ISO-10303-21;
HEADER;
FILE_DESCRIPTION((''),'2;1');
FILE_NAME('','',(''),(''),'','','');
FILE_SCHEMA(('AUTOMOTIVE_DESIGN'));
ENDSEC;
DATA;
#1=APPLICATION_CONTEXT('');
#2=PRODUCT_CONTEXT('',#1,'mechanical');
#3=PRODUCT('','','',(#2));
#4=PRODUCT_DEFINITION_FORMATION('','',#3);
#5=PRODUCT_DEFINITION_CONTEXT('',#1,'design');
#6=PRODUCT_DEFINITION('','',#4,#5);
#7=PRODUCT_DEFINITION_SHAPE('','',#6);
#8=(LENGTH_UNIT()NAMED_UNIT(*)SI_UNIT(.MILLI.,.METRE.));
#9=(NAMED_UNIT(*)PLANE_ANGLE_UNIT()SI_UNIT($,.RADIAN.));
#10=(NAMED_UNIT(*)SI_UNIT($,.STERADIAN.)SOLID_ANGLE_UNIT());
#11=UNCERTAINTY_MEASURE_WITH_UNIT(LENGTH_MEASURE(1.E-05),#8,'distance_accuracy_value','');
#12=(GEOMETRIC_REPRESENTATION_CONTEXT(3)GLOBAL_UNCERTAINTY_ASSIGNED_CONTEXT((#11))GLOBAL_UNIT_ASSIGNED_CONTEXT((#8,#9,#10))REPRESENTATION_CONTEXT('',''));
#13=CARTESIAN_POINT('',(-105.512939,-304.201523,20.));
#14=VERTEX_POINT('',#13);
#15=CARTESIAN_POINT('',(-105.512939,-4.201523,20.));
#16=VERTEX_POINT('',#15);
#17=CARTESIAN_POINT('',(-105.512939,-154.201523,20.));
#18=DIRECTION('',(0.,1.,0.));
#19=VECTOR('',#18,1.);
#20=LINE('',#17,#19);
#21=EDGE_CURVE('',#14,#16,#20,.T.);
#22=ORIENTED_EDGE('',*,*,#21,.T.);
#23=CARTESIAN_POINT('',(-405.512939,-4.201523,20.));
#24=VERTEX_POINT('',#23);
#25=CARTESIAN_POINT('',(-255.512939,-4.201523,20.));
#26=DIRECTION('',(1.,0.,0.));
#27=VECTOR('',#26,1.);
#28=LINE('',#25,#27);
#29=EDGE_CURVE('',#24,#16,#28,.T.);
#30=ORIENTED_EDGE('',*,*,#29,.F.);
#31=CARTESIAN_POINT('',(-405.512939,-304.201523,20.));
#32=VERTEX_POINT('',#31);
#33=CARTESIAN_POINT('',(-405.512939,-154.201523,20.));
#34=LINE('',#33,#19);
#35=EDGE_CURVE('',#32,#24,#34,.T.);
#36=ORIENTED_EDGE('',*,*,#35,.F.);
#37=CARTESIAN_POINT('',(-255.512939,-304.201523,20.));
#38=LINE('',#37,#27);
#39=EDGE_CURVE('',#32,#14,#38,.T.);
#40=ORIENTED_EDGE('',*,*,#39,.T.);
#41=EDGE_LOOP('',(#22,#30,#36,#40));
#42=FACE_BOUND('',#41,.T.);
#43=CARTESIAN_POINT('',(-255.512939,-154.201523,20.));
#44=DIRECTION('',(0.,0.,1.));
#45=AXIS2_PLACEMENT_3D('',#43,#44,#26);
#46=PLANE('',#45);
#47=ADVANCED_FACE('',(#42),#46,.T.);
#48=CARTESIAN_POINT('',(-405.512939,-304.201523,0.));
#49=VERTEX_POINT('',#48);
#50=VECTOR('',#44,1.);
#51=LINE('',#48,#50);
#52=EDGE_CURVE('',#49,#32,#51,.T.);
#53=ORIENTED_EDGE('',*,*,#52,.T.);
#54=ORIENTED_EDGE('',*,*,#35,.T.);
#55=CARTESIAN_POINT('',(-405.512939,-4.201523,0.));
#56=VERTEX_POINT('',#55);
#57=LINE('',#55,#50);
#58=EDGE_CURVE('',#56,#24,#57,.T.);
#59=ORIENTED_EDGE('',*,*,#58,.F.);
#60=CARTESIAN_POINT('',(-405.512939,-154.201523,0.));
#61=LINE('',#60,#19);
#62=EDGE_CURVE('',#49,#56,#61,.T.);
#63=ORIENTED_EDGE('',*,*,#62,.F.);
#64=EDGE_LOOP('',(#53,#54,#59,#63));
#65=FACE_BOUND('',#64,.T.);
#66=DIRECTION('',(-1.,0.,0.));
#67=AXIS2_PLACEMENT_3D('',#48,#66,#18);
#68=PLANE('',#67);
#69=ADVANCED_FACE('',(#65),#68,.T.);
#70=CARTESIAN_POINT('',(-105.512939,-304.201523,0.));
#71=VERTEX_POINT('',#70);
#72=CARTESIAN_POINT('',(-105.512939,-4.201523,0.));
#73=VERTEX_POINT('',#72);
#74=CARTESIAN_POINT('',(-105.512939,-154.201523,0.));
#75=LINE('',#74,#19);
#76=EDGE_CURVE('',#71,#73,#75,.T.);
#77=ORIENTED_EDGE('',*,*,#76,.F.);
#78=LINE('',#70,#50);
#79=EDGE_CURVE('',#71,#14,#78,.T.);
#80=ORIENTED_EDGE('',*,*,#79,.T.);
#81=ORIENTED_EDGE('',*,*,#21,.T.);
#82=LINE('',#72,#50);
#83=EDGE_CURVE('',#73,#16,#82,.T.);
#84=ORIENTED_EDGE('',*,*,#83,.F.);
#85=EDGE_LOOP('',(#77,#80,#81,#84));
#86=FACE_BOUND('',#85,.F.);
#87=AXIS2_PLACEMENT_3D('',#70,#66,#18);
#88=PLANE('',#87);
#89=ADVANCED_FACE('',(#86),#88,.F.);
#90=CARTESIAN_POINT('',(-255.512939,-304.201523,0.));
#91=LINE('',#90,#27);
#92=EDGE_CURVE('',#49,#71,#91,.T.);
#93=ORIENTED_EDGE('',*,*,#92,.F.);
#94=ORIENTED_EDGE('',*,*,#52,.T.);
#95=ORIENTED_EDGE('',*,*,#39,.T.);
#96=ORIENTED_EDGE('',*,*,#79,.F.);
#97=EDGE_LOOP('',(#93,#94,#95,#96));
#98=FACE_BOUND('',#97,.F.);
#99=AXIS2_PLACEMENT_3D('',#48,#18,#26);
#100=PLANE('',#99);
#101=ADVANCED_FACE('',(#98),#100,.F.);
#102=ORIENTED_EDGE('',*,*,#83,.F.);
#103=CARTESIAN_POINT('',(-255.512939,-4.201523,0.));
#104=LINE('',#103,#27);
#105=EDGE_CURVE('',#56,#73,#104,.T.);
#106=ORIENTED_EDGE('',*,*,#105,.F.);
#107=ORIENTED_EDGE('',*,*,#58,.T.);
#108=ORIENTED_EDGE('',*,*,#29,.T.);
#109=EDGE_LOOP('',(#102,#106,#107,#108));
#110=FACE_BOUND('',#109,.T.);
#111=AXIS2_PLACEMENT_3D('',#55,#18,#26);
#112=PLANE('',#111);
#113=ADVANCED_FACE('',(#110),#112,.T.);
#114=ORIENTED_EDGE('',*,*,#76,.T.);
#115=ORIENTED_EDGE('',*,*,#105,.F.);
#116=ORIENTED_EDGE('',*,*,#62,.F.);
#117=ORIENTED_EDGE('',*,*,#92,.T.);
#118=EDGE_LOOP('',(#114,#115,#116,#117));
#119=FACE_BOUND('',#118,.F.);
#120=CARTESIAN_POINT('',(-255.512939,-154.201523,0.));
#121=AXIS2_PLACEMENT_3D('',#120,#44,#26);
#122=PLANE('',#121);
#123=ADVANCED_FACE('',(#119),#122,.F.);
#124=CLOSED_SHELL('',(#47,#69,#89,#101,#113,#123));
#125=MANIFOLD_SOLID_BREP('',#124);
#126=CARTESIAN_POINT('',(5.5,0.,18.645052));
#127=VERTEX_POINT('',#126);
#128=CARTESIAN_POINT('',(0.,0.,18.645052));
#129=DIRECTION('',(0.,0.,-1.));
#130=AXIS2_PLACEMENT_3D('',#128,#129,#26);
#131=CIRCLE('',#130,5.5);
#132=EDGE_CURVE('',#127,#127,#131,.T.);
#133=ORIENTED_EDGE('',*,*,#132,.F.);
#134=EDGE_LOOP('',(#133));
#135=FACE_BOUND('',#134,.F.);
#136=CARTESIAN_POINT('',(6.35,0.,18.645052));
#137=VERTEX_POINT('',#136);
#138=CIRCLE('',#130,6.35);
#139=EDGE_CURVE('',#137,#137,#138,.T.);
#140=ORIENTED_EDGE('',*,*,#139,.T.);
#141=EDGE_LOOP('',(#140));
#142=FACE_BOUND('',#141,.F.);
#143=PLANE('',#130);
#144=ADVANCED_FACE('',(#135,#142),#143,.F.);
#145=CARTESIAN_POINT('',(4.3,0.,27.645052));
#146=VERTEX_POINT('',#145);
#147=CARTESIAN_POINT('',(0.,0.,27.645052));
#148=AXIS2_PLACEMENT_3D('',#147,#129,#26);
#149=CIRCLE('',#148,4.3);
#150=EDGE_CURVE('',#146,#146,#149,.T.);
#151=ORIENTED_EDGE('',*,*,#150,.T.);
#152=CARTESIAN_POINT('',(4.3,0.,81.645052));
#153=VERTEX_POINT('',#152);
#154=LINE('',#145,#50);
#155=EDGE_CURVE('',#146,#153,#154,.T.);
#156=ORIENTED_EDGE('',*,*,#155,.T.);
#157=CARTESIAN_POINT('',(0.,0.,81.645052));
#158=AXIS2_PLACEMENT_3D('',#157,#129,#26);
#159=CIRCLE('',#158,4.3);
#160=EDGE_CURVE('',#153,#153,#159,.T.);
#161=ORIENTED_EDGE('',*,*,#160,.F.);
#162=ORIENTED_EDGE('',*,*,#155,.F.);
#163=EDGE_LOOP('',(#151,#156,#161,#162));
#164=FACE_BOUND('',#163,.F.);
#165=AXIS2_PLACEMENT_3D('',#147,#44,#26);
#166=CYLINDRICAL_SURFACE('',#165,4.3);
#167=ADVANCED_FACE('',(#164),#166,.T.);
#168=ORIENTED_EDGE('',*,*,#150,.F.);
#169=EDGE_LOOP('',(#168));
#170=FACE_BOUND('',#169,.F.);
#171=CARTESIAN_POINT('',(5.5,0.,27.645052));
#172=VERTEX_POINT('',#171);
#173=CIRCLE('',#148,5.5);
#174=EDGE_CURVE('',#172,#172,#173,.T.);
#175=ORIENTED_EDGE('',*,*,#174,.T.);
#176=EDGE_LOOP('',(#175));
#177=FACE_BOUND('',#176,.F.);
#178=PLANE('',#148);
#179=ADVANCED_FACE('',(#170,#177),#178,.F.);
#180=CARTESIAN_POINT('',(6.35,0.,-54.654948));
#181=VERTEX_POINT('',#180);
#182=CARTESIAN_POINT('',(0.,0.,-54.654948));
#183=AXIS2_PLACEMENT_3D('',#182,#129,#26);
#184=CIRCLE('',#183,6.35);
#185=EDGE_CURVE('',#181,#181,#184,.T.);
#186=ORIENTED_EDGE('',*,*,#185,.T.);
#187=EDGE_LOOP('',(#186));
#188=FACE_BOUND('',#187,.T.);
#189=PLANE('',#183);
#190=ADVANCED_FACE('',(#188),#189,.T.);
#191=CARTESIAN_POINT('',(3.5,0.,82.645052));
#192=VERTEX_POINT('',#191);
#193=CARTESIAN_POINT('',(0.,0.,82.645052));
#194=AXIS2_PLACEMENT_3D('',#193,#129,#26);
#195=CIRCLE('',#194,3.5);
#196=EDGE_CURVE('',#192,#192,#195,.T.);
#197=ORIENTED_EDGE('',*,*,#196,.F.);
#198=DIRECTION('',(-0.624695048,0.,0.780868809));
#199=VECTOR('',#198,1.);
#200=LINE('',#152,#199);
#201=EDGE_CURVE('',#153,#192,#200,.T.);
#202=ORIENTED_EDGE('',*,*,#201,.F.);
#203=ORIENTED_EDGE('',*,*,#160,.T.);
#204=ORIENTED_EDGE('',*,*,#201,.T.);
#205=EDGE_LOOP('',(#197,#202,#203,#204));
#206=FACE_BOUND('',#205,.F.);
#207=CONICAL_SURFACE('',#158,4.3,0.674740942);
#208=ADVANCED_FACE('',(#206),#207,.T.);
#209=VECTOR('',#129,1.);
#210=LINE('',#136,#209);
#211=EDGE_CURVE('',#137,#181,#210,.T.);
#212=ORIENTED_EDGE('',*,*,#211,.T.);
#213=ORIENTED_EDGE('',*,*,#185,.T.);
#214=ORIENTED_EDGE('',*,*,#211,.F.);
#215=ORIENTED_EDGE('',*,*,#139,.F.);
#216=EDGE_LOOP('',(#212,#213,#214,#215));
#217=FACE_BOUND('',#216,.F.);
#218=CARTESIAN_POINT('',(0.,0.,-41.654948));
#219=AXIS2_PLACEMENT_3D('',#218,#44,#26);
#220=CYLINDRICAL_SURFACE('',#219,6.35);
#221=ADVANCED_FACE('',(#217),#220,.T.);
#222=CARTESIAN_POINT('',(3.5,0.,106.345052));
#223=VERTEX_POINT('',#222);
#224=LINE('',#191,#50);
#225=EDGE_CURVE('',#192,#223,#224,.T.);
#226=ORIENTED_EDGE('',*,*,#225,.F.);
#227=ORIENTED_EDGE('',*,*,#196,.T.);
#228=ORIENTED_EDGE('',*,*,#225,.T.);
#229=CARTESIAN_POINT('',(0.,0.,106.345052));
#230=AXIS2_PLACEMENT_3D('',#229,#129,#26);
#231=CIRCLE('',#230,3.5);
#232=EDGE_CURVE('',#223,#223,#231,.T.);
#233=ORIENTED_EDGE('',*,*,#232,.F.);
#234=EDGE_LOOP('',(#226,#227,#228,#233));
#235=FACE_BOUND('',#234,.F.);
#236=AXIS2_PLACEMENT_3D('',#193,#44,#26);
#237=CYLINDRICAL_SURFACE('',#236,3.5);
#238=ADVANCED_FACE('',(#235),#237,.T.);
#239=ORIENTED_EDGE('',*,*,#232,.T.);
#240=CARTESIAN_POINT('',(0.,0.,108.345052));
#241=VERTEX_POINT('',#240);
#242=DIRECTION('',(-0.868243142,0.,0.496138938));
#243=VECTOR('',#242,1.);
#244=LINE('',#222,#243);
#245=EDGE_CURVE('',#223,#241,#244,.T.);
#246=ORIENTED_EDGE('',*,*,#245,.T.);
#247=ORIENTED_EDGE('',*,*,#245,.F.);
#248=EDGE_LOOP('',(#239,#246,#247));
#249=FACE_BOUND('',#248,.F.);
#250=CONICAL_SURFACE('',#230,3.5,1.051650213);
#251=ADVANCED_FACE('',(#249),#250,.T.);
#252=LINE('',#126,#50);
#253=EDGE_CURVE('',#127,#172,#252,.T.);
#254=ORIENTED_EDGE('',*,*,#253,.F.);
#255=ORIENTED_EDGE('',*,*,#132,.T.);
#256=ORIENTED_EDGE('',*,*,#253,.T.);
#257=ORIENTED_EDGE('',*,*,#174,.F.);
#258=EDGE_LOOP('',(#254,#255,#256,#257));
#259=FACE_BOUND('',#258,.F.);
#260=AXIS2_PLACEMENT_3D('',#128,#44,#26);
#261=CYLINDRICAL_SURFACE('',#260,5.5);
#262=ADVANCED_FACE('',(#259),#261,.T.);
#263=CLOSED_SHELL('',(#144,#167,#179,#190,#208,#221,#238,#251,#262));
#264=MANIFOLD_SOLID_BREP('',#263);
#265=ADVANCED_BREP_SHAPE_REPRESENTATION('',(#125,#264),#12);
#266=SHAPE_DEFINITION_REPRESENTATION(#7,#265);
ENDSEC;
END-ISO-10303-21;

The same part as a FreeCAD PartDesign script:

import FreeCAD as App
import Part
import Sketcher
from FreeCAD import Vector


def add_polygon(sketch, points):
    """Adds a closed chain of lines whose ends are joined by coincident constraints."""
    first, n = sketch.GeometryCount, len(points)
    for a, b in zip(points, points[1:] + points[:1]):
        sketch.addGeometry(Part.LineSegment(App.Vector(*a, 0), App.Vector(*b, 0)), False)
    for i in range(n):
        sketch.addConstraint(Sketcher.Constraint("Coincident", first + i, 2, first + (i + 1) % n, 1))

doc = App.newDocument("Part")
body = doc.addObject("PartDesign::Body", "Body")

sketch1 = body.newObject("Sketcher::SketchObject", "Sketch")
sketch1.AttachmentSupport = (doc.getObject("XZ_Plane"), [""])
sketch1.MapMode = "FlatFace"
add_polygon(sketch1, [(3.5, 106.345052), (0, 108.345052), (0, -41.654948), (6.35, -41.654948), (6.35, 18.645052), (5.5, 18.645052), (5.5, 27.645052), (4.3, 27.645052), (4.3, 81.645052), (3.5, 82.645052)])
sketch1.addConstraint([
    Sketcher.Constraint("Vertical", 1),
    Sketcher.Constraint("Horizontal", 2),
    Sketcher.Constraint("Vertical", 3),
    Sketcher.Constraint("Horizontal", 4),
    Sketcher.Constraint("Vertical", 5),
    Sketcher.Constraint("Horizontal", 6),
    Sketcher.Constraint("Vertical", 7),
    Sketcher.Constraint("Vertical", 9),
    Sketcher.Constraint("PointOnObject", 0, 2, -2),
    Sketcher.Constraint("DistanceY", 1, 2, 1, 1, 150.0),
    Sketcher.Constraint("DistanceY", 5, 1, 5, 2, 9.0),
    Sketcher.Constraint("DistanceY", 7, 1, 7, 2, 54.0),
    Sketcher.Constraint("DistanceX", 6, 2, 6, 1, 1.2),
    Sketcher.Constraint("DistanceY", 3, 1, 3, 2, 60.3),
    Sketcher.Constraint("DistanceY", 9, 1, 9, 2, 23.7),
    Sketcher.Constraint("DistanceY", 7, 2, 8, 2, 1.0),
    Sketcher.Constraint("DistanceX", 8, 2, 5, 2, 2.0),
    Sketcher.Constraint("DistanceX", 2, 1, 2, 2, 6.35),
    Sketcher.Constraint("DistanceX", 4, 2, 4, 1, 0.85),
    Sketcher.Constraint("DistanceY", -1, 1, 0, 2, 108.345052),
])
revolution = body.newObject("PartDesign::Revolution", "Revolution")
revolution.Profile = sketch1
revolution.ReferenceAxis = (sketch1, ["V_Axis"])
revolution.Angle = 360

sketch2 = body.newObject("Sketcher::SketchObject", "Sketch001")
sketch2.AttachmentSupport = (doc.getObject("XY_Plane"), [""])
sketch2.MapMode = "FlatFace"
sketch2.AttachmentOffset = App.Placement(Vector(0, 0, -41.654948), App.Rotation())
sketch2.addGeometry(Part.Circle(Vector(0, 0, 0), Vector(0, 0, 1), 6.35), False)
sketch2.addConstraint([
    Sketcher.Constraint("Coincident", 0, 3, -1, 1),
    Sketcher.Constraint("Diameter", 0, 12.7),
])
pad1 = body.newObject("PartDesign::Pad", "Pad")
pad1.Profile = sketch2
pad1.Length = 13
pad1.Reversed = True
body2 = doc.addObject("PartDesign::Body", "Body001")

sketch3 = body2.newObject("Sketcher::SketchObject", "Sketch002")
sketch3.AttachmentSupport = (doc.getObject("XY_Plane001"), [""])
sketch3.MapMode = "FlatFace"
add_polygon(sketch3, [(-405.512939, -4.201523), (-405.512939, -304.201523), (-105.512939, -304.201523), (-105.512939, -4.201523)])
sketch3.addConstraint([
    Sketcher.Constraint("Vertical", 0),
    Sketcher.Constraint("Horizontal", 1),
    Sketcher.Constraint("Vertical", 2),
    Sketcher.Constraint("Horizontal", 3),
    Sketcher.Constraint("Equal", 3, 0),
    Sketcher.Constraint("DistanceX", 1, 1, 1, 2, 300.0),
    Sketcher.Constraint("DistanceX", 0, 2, -1, 1, 405.512939),
    Sketcher.Constraint("DistanceY", 0, 2, -1, 1, 304.201523),
])
pad2 = body2.newObject("PartDesign::Pad", "Pad001")
pad2.Profile = sketch3
pad2.Length = 20

doc.recompute()
